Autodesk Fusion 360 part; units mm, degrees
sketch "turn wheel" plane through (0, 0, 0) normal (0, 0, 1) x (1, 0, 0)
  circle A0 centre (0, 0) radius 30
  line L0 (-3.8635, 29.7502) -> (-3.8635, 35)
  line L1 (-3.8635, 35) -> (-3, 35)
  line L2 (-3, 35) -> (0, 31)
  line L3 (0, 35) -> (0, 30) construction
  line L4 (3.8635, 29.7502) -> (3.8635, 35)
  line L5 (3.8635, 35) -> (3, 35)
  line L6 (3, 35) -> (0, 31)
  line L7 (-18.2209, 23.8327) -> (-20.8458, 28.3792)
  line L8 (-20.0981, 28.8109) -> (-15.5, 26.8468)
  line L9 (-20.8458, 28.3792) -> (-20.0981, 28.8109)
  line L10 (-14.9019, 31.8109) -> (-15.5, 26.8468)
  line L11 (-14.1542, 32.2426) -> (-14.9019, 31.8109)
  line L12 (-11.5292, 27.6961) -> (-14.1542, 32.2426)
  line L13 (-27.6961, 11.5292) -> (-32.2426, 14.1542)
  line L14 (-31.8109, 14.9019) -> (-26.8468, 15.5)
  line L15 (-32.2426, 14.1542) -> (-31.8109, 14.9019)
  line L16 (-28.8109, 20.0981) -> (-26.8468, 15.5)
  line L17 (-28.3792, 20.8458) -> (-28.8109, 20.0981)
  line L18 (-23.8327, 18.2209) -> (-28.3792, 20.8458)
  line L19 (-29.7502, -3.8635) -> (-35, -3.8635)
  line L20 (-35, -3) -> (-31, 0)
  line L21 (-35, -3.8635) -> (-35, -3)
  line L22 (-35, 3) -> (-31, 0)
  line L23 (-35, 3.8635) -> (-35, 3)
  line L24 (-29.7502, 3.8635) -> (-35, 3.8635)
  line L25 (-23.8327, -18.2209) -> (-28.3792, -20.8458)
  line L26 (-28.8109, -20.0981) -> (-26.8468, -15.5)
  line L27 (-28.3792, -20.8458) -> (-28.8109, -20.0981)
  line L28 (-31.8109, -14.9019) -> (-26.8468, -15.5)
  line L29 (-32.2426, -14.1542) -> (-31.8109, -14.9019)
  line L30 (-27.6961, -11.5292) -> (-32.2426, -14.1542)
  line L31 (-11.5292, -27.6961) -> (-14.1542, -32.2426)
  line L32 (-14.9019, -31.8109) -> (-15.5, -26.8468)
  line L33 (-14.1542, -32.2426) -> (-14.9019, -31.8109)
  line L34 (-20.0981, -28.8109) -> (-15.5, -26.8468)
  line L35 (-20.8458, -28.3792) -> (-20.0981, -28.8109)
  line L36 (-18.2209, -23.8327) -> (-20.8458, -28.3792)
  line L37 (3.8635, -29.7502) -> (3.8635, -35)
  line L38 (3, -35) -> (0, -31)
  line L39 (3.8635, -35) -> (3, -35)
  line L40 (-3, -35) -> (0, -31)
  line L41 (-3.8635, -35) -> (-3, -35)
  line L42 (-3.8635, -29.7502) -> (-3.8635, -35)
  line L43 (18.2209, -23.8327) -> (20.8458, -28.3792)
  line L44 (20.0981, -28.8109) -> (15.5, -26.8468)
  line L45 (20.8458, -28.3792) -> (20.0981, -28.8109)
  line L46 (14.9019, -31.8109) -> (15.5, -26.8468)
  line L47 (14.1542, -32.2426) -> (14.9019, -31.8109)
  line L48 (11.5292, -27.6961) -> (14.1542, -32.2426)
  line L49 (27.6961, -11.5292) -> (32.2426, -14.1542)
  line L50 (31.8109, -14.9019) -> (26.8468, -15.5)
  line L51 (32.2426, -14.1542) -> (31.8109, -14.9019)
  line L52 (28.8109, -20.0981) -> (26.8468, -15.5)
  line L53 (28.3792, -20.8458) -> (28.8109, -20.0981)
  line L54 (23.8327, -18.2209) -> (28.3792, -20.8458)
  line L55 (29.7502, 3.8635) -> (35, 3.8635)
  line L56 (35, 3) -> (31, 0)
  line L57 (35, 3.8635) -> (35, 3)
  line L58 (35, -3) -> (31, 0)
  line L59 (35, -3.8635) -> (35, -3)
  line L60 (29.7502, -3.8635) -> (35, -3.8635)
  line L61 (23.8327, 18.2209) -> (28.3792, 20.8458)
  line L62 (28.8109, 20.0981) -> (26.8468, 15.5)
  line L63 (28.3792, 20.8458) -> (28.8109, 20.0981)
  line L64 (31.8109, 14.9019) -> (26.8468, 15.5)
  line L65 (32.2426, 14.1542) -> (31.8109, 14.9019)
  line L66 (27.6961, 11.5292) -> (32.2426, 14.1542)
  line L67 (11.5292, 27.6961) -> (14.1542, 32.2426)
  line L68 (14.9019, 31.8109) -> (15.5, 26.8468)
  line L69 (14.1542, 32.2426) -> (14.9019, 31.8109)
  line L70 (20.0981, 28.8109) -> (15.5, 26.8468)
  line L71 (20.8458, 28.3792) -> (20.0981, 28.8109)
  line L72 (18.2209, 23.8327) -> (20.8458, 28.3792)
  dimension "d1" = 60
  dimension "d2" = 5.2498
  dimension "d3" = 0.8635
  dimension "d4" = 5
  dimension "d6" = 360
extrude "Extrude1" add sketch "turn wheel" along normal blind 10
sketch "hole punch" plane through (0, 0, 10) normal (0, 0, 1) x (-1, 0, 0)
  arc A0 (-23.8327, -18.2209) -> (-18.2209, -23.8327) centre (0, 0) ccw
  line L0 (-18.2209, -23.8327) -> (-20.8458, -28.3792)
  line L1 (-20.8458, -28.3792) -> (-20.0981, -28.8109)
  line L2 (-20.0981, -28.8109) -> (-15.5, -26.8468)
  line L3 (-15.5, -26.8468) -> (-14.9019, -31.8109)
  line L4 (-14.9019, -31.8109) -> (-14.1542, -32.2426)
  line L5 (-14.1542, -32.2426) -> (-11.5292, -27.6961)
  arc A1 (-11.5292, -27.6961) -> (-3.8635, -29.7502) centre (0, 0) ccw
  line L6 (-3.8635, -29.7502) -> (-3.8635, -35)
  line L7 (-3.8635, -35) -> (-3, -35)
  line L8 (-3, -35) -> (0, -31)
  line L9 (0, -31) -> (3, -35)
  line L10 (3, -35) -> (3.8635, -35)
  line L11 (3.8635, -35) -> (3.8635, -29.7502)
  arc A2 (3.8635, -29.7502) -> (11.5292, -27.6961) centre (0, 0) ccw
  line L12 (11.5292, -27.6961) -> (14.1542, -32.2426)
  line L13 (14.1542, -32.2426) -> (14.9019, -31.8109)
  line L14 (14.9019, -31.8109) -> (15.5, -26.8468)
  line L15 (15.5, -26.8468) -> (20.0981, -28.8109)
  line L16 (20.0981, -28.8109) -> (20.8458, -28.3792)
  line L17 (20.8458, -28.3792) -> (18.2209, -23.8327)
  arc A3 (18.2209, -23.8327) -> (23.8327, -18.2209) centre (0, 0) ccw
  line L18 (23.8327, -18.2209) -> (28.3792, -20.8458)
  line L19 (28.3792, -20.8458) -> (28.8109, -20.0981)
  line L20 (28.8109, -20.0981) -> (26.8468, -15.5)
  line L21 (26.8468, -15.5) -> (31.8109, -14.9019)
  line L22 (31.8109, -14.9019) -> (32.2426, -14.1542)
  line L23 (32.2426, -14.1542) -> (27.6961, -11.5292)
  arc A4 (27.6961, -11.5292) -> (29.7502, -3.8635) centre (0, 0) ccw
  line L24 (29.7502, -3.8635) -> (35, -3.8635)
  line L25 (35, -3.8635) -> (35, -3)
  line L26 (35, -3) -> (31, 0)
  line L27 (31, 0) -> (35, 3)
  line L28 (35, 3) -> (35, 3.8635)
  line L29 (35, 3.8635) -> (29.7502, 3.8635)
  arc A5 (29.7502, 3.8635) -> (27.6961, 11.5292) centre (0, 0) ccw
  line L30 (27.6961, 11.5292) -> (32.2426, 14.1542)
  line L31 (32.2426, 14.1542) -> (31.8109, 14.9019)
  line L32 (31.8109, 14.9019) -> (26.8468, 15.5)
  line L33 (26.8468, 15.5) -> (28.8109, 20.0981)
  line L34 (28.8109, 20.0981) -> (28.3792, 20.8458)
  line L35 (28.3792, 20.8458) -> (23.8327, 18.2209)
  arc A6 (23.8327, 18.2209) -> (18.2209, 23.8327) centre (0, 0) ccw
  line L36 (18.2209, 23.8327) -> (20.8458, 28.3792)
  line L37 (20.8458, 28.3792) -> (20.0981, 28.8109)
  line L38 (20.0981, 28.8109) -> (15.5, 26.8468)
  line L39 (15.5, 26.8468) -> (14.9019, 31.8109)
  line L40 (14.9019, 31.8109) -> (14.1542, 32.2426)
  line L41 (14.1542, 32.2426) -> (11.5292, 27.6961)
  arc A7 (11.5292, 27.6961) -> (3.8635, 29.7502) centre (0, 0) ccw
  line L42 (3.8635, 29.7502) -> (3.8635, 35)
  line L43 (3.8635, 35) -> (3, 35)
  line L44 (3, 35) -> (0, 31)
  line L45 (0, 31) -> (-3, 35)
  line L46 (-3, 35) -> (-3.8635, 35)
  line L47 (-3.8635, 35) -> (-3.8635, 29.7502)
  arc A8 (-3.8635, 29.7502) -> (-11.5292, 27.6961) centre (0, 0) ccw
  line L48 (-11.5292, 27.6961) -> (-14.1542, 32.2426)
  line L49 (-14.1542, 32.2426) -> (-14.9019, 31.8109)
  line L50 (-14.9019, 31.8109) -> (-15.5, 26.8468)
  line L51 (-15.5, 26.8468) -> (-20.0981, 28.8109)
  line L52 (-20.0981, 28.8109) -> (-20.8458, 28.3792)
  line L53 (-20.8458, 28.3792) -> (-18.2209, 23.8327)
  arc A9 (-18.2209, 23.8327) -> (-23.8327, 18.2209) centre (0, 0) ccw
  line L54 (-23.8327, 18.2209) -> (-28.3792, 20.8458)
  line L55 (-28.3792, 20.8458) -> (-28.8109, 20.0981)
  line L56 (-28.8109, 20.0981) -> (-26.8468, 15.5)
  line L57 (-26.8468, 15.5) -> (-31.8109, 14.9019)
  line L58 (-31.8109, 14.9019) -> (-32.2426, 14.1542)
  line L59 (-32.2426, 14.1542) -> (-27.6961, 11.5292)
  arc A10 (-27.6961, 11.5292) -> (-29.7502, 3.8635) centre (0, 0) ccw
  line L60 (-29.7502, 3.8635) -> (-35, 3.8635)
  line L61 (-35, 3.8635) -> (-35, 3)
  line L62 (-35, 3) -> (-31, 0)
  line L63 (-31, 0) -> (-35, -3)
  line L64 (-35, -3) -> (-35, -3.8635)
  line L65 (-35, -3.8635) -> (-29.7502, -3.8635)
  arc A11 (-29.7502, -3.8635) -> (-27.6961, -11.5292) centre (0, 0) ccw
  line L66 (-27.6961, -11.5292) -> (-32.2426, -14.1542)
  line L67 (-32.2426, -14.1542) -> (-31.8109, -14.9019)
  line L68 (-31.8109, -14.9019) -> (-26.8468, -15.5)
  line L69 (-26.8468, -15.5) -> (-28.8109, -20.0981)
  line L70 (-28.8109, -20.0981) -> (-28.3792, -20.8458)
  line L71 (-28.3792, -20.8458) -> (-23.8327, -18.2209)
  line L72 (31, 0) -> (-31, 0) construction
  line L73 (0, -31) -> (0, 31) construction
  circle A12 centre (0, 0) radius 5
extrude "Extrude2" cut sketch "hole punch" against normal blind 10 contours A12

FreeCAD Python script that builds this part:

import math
import FreeCAD as App
import Part
import Sketcher

V = App.Vector
Q = App.Units.Quantity

doc = App.newDocument("Part")
body = doc.addObject("PartDesign::Body", "Body")

# Sketch on XY plane
sketch1 = body.newObject("Sketcher::SketchObject", "Sketch")
sketch1.AttachmentSupport = (doc.getObject("XY_Plane"), [""])
sketch1.MapMode = "FlatFace"
sketch1.addGeometry([
    Part.ArcOfCircle(Part.Circle(V(0, 0, 0), V(0, 0, 1), 30), math.radians(-22.600752), math.radians(-7.399287)),  # 0
    Part.LineSegment(V(29.7502, -3.8635, 0), V(35, -3.8635, 0)),  # 1
    Part.LineSegment(V(35, -3.8635, 0), V(35, -3, 0)),  # 2
    Part.LineSegment(V(35, -3, 0), V(31, 0, 0)),  # 3
    Part.LineSegment(V(31, 0, 0), V(35, 3, 0)),  # 4
    Part.LineSegment(V(35, 3, 0), V(35, 3.8635, 0)),  # 5
    Part.LineSegment(V(35, 3.8635, 0), V(29.7502, 3.8635, 0)),  # 6
    Part.ArcOfCircle(Part.Circle(V(0, 0, 0), V(0, 0, 1), 30), math.radians(7.399287), math.radians(22.600752)),  # 7
    Part.LineSegment(V(27.6961, 11.5292, 0), V(32.2426, 14.1542, 0)),  # 8
    Part.LineSegment(V(32.2426, 14.1542, 0), V(31.8109, 14.9019, 0)),  # 9
    Part.LineSegment(V(31.8109, 14.9019, 0), V(26.8468, 15.5, 0)),  # 10
    Part.LineSegment(V(26.8468, 15.5, 0), V(28.8109, 20.0981, 0)),  # 11
    Part.LineSegment(V(28.8109, 20.0981, 0), V(28.3792, 20.8458, 0)),  # 12
    Part.LineSegment(V(28.3792, 20.8458, 0), V(23.8327, 18.2209, 0)),  # 13
    Part.ArcOfCircle(Part.Circle(V(0, 0, 0), V(0, 0, 1), 30), math.radians(37.399128), math.radians(52.600872)),  # 14
    Part.LineSegment(V(18.2209, 23.8327, 0), V(20.8458, 28.3792, 0)),  # 15
    Part.LineSegment(V(20.8458, 28.3792, 0), V(20.0981, 28.8109, 0)),  # 16
    Part.LineSegment(V(20.0981, 28.8109, 0), V(15.5, 26.8468, 0)),  # 17
    Part.LineSegment(V(15.5, 26.8468, 0), V(14.9019, 31.8109, 0)),  # 18
    Part.LineSegment(V(14.9019, 31.8109, 0), V(14.1542, 32.2426, 0)),  # 19
    Part.LineSegment(V(14.1542, 32.2426, 0), V(11.5292, 27.6961, 0)),  # 20
    Part.ArcOfCircle(Part.Circle(V(0, 0, 0), V(0, 0, 1), 30), math.radians(67.399248), math.radians(82.600713)),  # 21
    Part.LineSegment(V(3.8635, 29.7502, 0), V(3.8635, 35, 0)),  # 22
    Part.LineSegment(V(3.8635, 35, 0), V(3, 35, 0)),  # 23
    Part.LineSegment(V(3, 35, 0), V(0, 31, 0)),  # 24
    Part.LineSegment(V(0, 31, 0), V(-3, 35, 0)),  # 25
    Part.LineSegment(V(-3, 35, 0), V(-3.8635, 35, 0)),  # 26
    Part.LineSegment(V(-3.8635, 35, 0), V(-3.8635, 29.7502, 0)),  # 27
    Part.ArcOfCircle(Part.Circle(V(0, 0, 0), V(0, 0, 1), 30), math.radians(97.399287), math.radians(112.600752)),  # 28
    Part.LineSegment(V(-11.5292, 27.6961, 0), V(-14.1542, 32.2426, 0)),  # 29
    Part.LineSegment(V(-14.1542, 32.2426, 0), V(-14.9019, 31.8109, 0)),  # 30
    Part.LineSegment(V(-14.9019, 31.8109, 0), V(-15.5, 26.8468, 0)),  # 31
    Part.LineSegment(V(-15.5, 26.8468, 0), V(-20.0981, 28.8109, 0)),  # 32
    Part.LineSegment(V(-20.0981, 28.8109, 0), V(-20.8458, 28.3792, 0)),  # 33
    Part.LineSegment(V(-20.8458, 28.3792, 0), V(-18.2209, 23.8327, 0)),  # 34
    Part.ArcOfCircle(Part.Circle(V(0, 0, 0), V(0, 0, 1), 30), math.radians(127.399128), math.radians(142.600872)),  # 35
    Part.LineSegment(V(-23.8327, 18.2209, 0), V(-28.3792, 20.8458, 0)),  # 36
    Part.LineSegment(V(-28.3792, 20.8458, 0), V(-28.8109, 20.0981, 0)),  # 37
    Part.LineSegment(V(-28.8109, 20.0981, 0), V(-26.8468, 15.5, 0)),  # 38
    Part.LineSegment(V(-26.8468, 15.5, 0), V(-31.8109, 14.9019, 0)),  # 39
    Part.LineSegment(V(-31.8109, 14.9019, 0), V(-32.2426, 14.1542, 0)),  # 40
    Part.LineSegment(V(-32.2426, 14.1542, 0), V(-27.6961, 11.5292, 0)),  # 41
    Part.ArcOfCircle(Part.Circle(V(0, 0, 0), V(0, 0, 1), 30), math.radians(157.399248), math.radians(172.600713)),  # 42
    Part.LineSegment(V(-29.7502, 3.8635, 0), V(-35, 3.8635, 0)),  # 43
    Part.LineSegment(V(-35, 3.8635, 0), V(-35, 3, 0)),  # 44
    Part.LineSegment(V(-35, 3, 0), V(-31, 0, 0)),  # 45
    Part.LineSegment(V(-31, 0, 0), V(-35, -3, 0)),  # 46
    Part.LineSegment(V(-35, -3, 0), V(-35, -3.8635, 0)),  # 47
    Part.LineSegment(V(-35, -3.8635, 0), V(-29.7502, -3.8635, 0)),  # 48
    Part.ArcOfCircle(Part.Circle(V(0, 0, 0), V(0, 0, 1), 30), math.radians(-172.600713), math.radians(-157.399248)),  # 49
    Part.LineSegment(V(-27.6961, -11.5292, 0), V(-32.2426, -14.1542, 0)),  # 50
    Part.LineSegment(V(-32.2426, -14.1542, 0), V(-31.8109, -14.9019, 0)),  # 51
    Part.LineSegment(V(-31.8109, -14.9019, 0), V(-26.8468, -15.5, 0)),  # 52
    Part.LineSegment(V(-26.8468, -15.5, 0), V(-28.8109, -20.0981, 0)),  # 53
    Part.LineSegment(V(-28.8109, -20.0981, 0), V(-28.3792, -20.8458, 0)),  # 54
    Part.LineSegment(V(-28.3792, -20.8458, 0), V(-23.8327, -18.2209, 0)),  # 55
    Part.ArcOfCircle(Part.Circle(V(0, 0, 0), V(0, 0, 1), 30), math.radians(-142.600872), math.radians(-127.399128)),  # 56
    Part.LineSegment(V(-18.2209, -23.8327, 0), V(-20.8458, -28.3792, 0)),  # 57
    Part.LineSegment(V(-20.8458, -28.3792, 0), V(-20.0981, -28.8109, 0)),  # 58
    Part.LineSegment(V(-20.0981, -28.8109, 0), V(-15.5, -26.8468, 0)),  # 59
    Part.LineSegment(V(-15.5, -26.8468, 0), V(-14.9019, -31.8109, 0)),  # 60
    Part.LineSegment(V(-14.9019, -31.8109, 0), V(-14.1542, -32.2426, 0)),  # 61
    Part.LineSegment(V(-14.1542, -32.2426, 0), V(-11.5292, -27.6961, 0)),  # 62
    Part.ArcOfCircle(Part.Circle(V(0, 0, 0), V(0, 0, 1), 30), math.radians(-112.600752), math.radians(-97.399287)),  # 63
    Part.LineSegment(V(-3.8635, -29.7502, 0), V(-3.8635, -35, 0)),  # 64
    Part.LineSegment(V(-3.8635, -35, 0), V(-3, -35, 0)),  # 65
    Part.LineSegment(V(-3, -35, 0), V(0, -31, 0)),  # 66
    Part.LineSegment(V(0, -31, 0), V(3, -35, 0)),  # 67
    Part.LineSegment(V(3, -35, 0), V(3.8635, -35, 0)),  # 68
    Part.LineSegment(V(3.8635, -35, 0), V(3.8635, -29.7502, 0)),  # 69
    Part.ArcOfCircle(Part.Circle(V(0, 0, 0), V(0, 0, 1), 30), math.radians(-82.600713), math.radians(-67.399248)),  # 70
    Part.LineSegment(V(11.5292, -27.6961, 0), V(14.1542, -32.2426, 0)),  # 71
    Part.LineSegment(V(14.1542, -32.2426, 0), V(14.9019, -31.8109, 0)),  # 72
    Part.LineSegment(V(14.9019, -31.8109, 0), V(15.5, -26.8468, 0)),  # 73
    Part.LineSegment(V(15.5, -26.8468, 0), V(20.0981, -28.8109, 0)),  # 74
    Part.LineSegment(V(20.0981, -28.8109, 0), V(20.8458, -28.3792, 0)),  # 75
    Part.LineSegment(V(20.8458, -28.3792, 0), V(18.2209, -23.8327, 0)),  # 76
    Part.ArcOfCircle(Part.Circle(V(0, 0, 0), V(0, 0, 1), 30), math.radians(-52.600872), math.radians(-37.399128)),  # 77
    Part.LineSegment(V(23.8327, -18.2209, 0), V(28.3792, -20.8458, 0)),  # 78
    Part.LineSegment(V(28.3792, -20.8458, 0), V(28.8109, -20.0981, 0)),  # 79
    Part.LineSegment(V(28.8109, -20.0981, 0), V(26.8468, -15.5, 0)),  # 80
    Part.LineSegment(V(26.8468, -15.5, 0), V(31.8109, -14.9019, 0)),  # 81
    Part.LineSegment(V(31.8109, -14.9019, 0), V(32.2426, -14.1542, 0)),  # 82
    Part.LineSegment(V(32.2426, -14.1542, 0), V(27.6961, -11.5292, 0)),  # 83
], False)
sketch1.addConstraint([
    Sketcher.Constraint("Coincident", 0, 2, 1, 1),
    Sketcher.Constraint("Coincident", 1, 2, 2, 1),
    Sketcher.Constraint("Coincident", 2, 2, 3, 1),
    Sketcher.Constraint("Coincident", 3, 2, 4, 1),
    Sketcher.Constraint("Coincident", 4, 2, 5, 1),
    Sketcher.Constraint("Coincident", 5, 2, 6, 1),
    Sketcher.Constraint("Coincident", 6, 2, 7, 1),
    Sketcher.Constraint("Coincident", 7, 2, 8, 1),
    Sketcher.Constraint("Coincident", 8, 2, 9, 1),
    Sketcher.Constraint("Coincident", 9, 2, 10, 1),
    Sketcher.Constraint("Coincident", 10, 2, 11, 1),
    Sketcher.Constraint("Coincident", 11, 2, 12, 1),
    Sketcher.Constraint("Coincident", 12, 2, 13, 1),
    Sketcher.Constraint("Coincident", 13, 2, 14, 1),
    Sketcher.Constraint("Coincident", 14, 2, 15, 1),
    Sketcher.Constraint("Coincident", 15, 2, 16, 1),
    Sketcher.Constraint("Coincident", 16, 2, 17, 1),
    Sketcher.Constraint("Coincident", 17, 2, 18, 1),
    Sketcher.Constraint("Coincident", 18, 2, 19, 1),
    Sketcher.Constraint("Coincident", 19, 2, 20, 1),
    Sketcher.Constraint("Coincident", 20, 2, 21, 1),
    Sketcher.Constraint("Coincident", 21, 2, 22, 1),
    Sketcher.Constraint("Coincident", 22, 2, 23, 1),
    Sketcher.Constraint("Coincident", 23, 2, 24, 1),
    Sketcher.Constraint("Coincident", 24, 2, 25, 1),
    Sketcher.Constraint("Coincident", 25, 2, 26, 1),
    Sketcher.Constraint("Coincident", 26, 2, 27, 1),
    Sketcher.Constraint("Coincident", 27, 2, 28, 1),
    Sketcher.Constraint("Coincident", 28, 2, 29, 1),
    Sketcher.Constraint("Coincident", 29, 2, 30, 1),
    Sketcher.Constraint("Coincident", 30, 2, 31, 1),
    Sketcher.Constraint("Coincident", 31, 2, 32, 1),
    Sketcher.Constraint("Coincident", 32, 2, 33, 1),
    Sketcher.Constraint("Coincident", 33, 2, 34, 1),
    Sketcher.Constraint("Coincident", 34, 2, 35, 1),
    Sketcher.Constraint("Coincident", 35, 2, 36, 1),
    Sketcher.Constraint("Coincident", 36, 2, 37, 1),
    Sketcher.Constraint("Coincident", 37, 2, 38, 1),
    Sketcher.Constraint("Coincident", 38, 2, 39, 1),
    Sketcher.Constraint("Coincident", 39, 2, 40, 1),
    Sketcher.Constraint("Coincident", 40, 2, 41, 1),
    Sketcher.Constraint("Coincident", 41, 2, 42, 1),
    Sketcher.Constraint("Coincident", 42, 2, 43, 1),
    Sketcher.Constraint("Coincident", 43, 2, 44, 1),
    Sketcher.Constraint("Coincident", 44, 2, 45, 1),
    Sketcher.Constraint("Coincident", 45, 2, 46, 1),
    Sketcher.Constraint("Coincident", 46, 2, 47, 1),
    Sketcher.Constraint("Coincident", 47, 2, 48, 1),
    Sketcher.Constraint("Coincident", 48, 2, 49, 1),
    Sketcher.Constraint("Coincident", 49, 2, 50, 1),
    Sketcher.Constraint("Coincident", 50, 2, 51, 1),
    Sketcher.Constraint("Coincident", 51, 2, 52, 1),
    Sketcher.Constraint("Coincident", 52, 2, 53, 1),
    Sketcher.Constraint("Coincident", 53, 2, 54, 1),
    Sketcher.Constraint("Coincident", 54, 2, 55, 1),
    Sketcher.Constraint("Coincident", 55, 2, 56, 1),
    Sketcher.Constraint("Coincident", 56, 2, 57, 1),
    Sketcher.Constraint("Coincident", 57, 2, 58, 1),
    Sketcher.Constraint("Coincident", 58, 2, 59, 1),
    Sketcher.Constraint("Coincident", 59, 2, 60, 1),
    Sketcher.Constraint("Coincident", 60, 2, 61, 1),
    Sketcher.Constraint("Coincident", 61, 2, 62, 1),
    Sketcher.Constraint("Coincident", 62, 2, 63, 1),
    Sketcher.Constraint("Coincident", 63, 2, 64, 1),
    Sketcher.Constraint("Coincident", 64, 2, 65, 1),
    Sketcher.Constraint("Coincident", 65, 2, 66, 1),
    Sketcher.Constraint("Coincident", 66, 2, 67, 1),
    Sketcher.Constraint("Coincident", 67, 2, 68, 1),
    Sketcher.Constraint("Coincident", 68, 2, 69, 1),
    Sketcher.Constraint("Coincident", 69, 2, 70, 1),
    Sketcher.Constraint("Coincident", 70, 2, 71, 1),
    Sketcher.Constraint("Coincident", 71, 2, 72, 1),
    Sketcher.Constraint("Coincident", 72, 2, 73, 1),
    Sketcher.Constraint("Coincident", 73, 2, 74, 1),
    Sketcher.Constraint("Coincident", 74, 2, 75, 1),
    Sketcher.Constraint("Coincident", 75, 2, 76, 1),
    Sketcher.Constraint("Coincident", 76, 2, 77, 1),
    Sketcher.Constraint("Coincident", 77, 2, 78, 1),
    Sketcher.Constraint("Coincident", 78, 2, 79, 1),
    Sketcher.Constraint("Coincident", 79, 2, 80, 1),
    Sketcher.Constraint("Coincident", 80, 2, 81, 1),
    Sketcher.Constraint("Coincident", 81, 2, 82, 1),
    Sketcher.Constraint("Coincident", 82, 2, 83, 1),
    Sketcher.Constraint("Coincident", 83, 2, 0, 1),
    Sketcher.Constraint("Horizontal", 1),
    Sketcher.Constraint("Vertical", 2),
    Sketcher.Constraint("Vertical", 5),
    Sketcher.Constraint("Horizontal", 6),
    Sketcher.Constraint("Vertical", 22),
    Sketcher.Constraint("Horizontal", 23),
    Sketcher.Constraint("Horizontal", 26),
    Sketcher.Constraint("Vertical", 27),
    Sketcher.Constraint("Horizontal", 43),
    Sketcher.Constraint("Vertical", 44),
    Sketcher.Constraint("Vertical", 47),
    Sketcher.Constraint("Horizontal", 48),
    Sketcher.Constraint("Vertical", 64),
    Sketcher.Constraint("Horizontal", 65),
    Sketcher.Constraint("Horizontal", 68),
    Sketcher.Constraint("Vertical", 69),
    Sketcher.Constraint("Coincident", 0, 3, -1, 1),
    Sketcher.Constraint("Coincident", 7, 3, -1, 1),
    Sketcher.Constraint("Coincident", 14, 3, -1, 1),
    Sketcher.Constraint("Coincident", 21, 3, -1, 1),
    Sketcher.Constraint("Coincident", 28, 3, -1, 1),
    Sketcher.Constraint("Coincident", 35, 3, -1, 1),
    Sketcher.Constraint("Coincident", 42, 3, -1, 1),
    Sketcher.Constraint("Coincident", 49, 3, -1, 1),
    Sketcher.Constraint("Coincident", 56, 3, -1, 1),
    Sketcher.Constraint("Coincident", 63, 3, -1, 1),
    Sketcher.Constraint("Coincident", 70, 3, -1, 1),
    Sketcher.Constraint("Coincident", 77, 3, -1, 1),
    Sketcher.Constraint("Equal", 0, 7),
    Sketcher.Constraint("Equal", 7, 14),
    Sketcher.Constraint("Equal", 14, 21),
    Sketcher.Constraint("Equal", 21, 28),
    Sketcher.Constraint("Equal", 28, 35),
    Sketcher.Constraint("Equal", 35, 42),
    Sketcher.Constraint("Equal", 42, 49),
    Sketcher.Constraint("Equal", 49, 56),
    Sketcher.Constraint("Equal", 56, 63),
    Sketcher.Constraint("Equal", 63, 70),
    Sketcher.Constraint("Equal", 70, 77),
    Sketcher.Constraint("Symmetric", 1, 2, 43, 2, -1, 1),
    Sketcher.Constraint("Symmetric", 3, 2, 45, 2, -1, 1),
    Sketcher.Constraint("Symmetric", 4, 2, 46, 2, -1, 1),
    Sketcher.Constraint("Symmetric", 8, 2, 50, 2, -1, 1),
    Sketcher.Constraint("Symmetric", 9, 2, 51, 2, -1, 1),
    Sketcher.Constraint("Symmetric", 10, 2, 52, 2, -1, 1),
    Sketcher.Constraint("Symmetric", 11, 2, 53, 2, -1, 1),
    Sketcher.Constraint("Symmetric", 12, 2, 54, 2, -1, 1),
    Sketcher.Constraint("Symmetric", 15, 2, 57, 2, -1, 1),
    Sketcher.Constraint("Symmetric", 16, 2, 58, 2, -1, 1),
    Sketcher.Constraint("Symmetric", 17, 2, 59, 2, -1, 1),
    Sketcher.Constraint("Symmetric", 18, 2, 60, 2, -1, 1),
    Sketcher.Constraint("Symmetric", 19, 2, 61, 2, -1, 1),
    Sketcher.Constraint("Symmetric", 22, 2, 64, 2, -1, 1),
    Sketcher.Constraint("Symmetric", 24, 2, 66, 2, -1, 1),
    Sketcher.Constraint("Symmetric", 25, 2, 67, 2, -1, 1),
    Sketcher.Constraint("Symmetric", 29, 2, 71, 2, -1, 1),
    Sketcher.Constraint("Symmetric", 30, 2, 72, 2, -1, 1),
    Sketcher.Constraint("Symmetric", 31, 2, 73, 2, -1, 1),
    Sketcher.Constraint("Symmetric", 32, 2, 74, 2, -1, 1),
    Sketcher.Constraint("Symmetric", 33, 2, 75, 2, -1, 1),
    Sketcher.Constraint("Symmetric", 36, 2, 78, 2, -1, 1),
    Sketcher.Constraint("Symmetric", 37, 2, 79, 2, -1, 1),
    Sketcher.Constraint("Symmetric", 38, 2, 80, 2, -1, 1),
    Sketcher.Constraint("Symmetric", 39, 2, 81, 2, -1, 1),
    Sketcher.Constraint("Symmetric", 40, 2, 82, 2, -1, 1),
    Sketcher.Constraint("Symmetric", 23, 2, 25, 2, -2),
    Sketcher.Constraint("Symmetric", 19, 2, 29, 2, -2),
    Sketcher.Constraint("Symmetric", 18, 2, 30, 2, -2),
    Sketcher.Constraint("Symmetric", 17, 2, 31, 2, -2),
    Sketcher.Constraint("Symmetric", 16, 2, 32, 2, -2),
    Sketcher.Constraint("Symmetric", 15, 2, 33, 2, -2),
    Sketcher.Constraint("Symmetric", 12, 2, 36, 2, -2),
    Sketcher.Constraint("Symmetric", 11, 2, 37, 2, -2),
    Sketcher.Constraint("Symmetric", 10, 2, 38, 2, -2),
    Sketcher.Constraint("Symmetric", 9, 2, 39, 2, -2),
    Sketcher.Constraint("Symmetric", 8, 2, 40, 2, -2),
    Sketcher.Constraint("Symmetric", 5, 2, 43, 2, -2),
    Sketcher.Constraint("PointOnObject", 3, 2, -1),
    Sketcher.Constraint("PointOnObject", 24, 2, -2),
    Sketcher.Constraint("Perpendicular", 8, 9),
    Sketcher.Constraint("Parallel", 9, 12),
    Sketcher.Constraint("Perpendicular", 12, 13),
    Sketcher.Constraint("Perpendicular", 15, 16),
    Sketcher.Constraint("Parallel", 16, 19),
    Sketcher.Constraint("Perpendicular", 19, 20),
    Sketcher.Constraint("Perpendicular", 3, 24),
    Sketcher.Constraint("Perpendicular", 4, 25),
    Sketcher.Constraint("Perpendicular", 13, 29),
    Sketcher.Constraint("Perpendicular", 29, 30),
    Sketcher.Constraint("Perpendicular", 10, 31),
    Sketcher.Constraint("Perpendicular", 11, 32),
    Sketcher.Constraint("Perpendicular", 33, 34),
    Sketcher.Constraint("Perpendicular", 20, 36),
    Sketcher.Constraint("Perpendicular", 40, 41),
    Sketcher.Constraint("Perpendicular", 24, 45),
    Sketcher.Constraint("Perpendicular", 34, 50),
    Sketcher.Constraint("Perpendicular", 54, 55),
    Sketcher.Constraint("Perpendicular", 41, 57),
    Sketcher.Constraint("Perpendicular", 61, 62),
    Sketcher.Constraint("Perpendicular", 45, 66),
    Sketcher.Constraint("Perpendicular", 55, 71),
    Sketcher.Constraint("Perpendicular", 75, 76),
    Sketcher.Constraint("Perpendicular", 62, 78),
    Sketcher.Constraint("Perpendicular", 82, 83),
    Sketcher.Constraint("Horizontal", 21, 2, 27, 2),
    Sketcher.Constraint("Horizontal", 1, 2, 47, 2),
    Sketcher.Constraint("Horizontal", 63, 2, 69, 2),
    Sketcher.Constraint("Equal", 68, 2),
    Sketcher.Constraint("Equal", 48, 22),
    Sketcher.Constraint("Equal", 4, 10),
    Sketcher.Constraint("Equal", 10, 11),
    Sketcher.Constraint("Equal", 9, 12),
    Sketcher.Constraint("Equal", 8, 13),
    Sketcher.Constraint("Equal", 13, 15),
    Sketcher.Constraint("Equal", 12, 16),
    Sketcher.Constraint("Equal", 11, 17),
    Sketcher.Constraint("Equal", 17, 18),
    Sketcher.Constraint("Equal", 16, 19),
    Sketcher.Constraint("Equal", 15, 20),
    Sketcher.Constraint("Equal", 18, 24),
    Sketcher.Constraint("Radius", 0, 30.0),
    Sketcher.Constraint("Angle", 15, Q("60.0002 deg")),
    Sketcher.Constraint("Distance", 3, 5.0),
    Sketcher.Constraint("Distance", 8, 5.25),
    Sketcher.Constraint("DistanceX", 1, 1, 1, 2, 5.2498),
    Sketcher.Constraint("DistanceX", 23, 2, 23, 1, 0.8635),
    Sketcher.Constraint("DistanceX", -1, 1, 1, 2, 35.0),
    Sketcher.Constraint("Distance", 9, 0.8634),
    Sketcher.Constraint("DistanceY", -1, 1, 10, 2, 15.5),
    Sketcher.Constraint("Angle", 10, Q("173.1298 deg")),
])
pad1 = body.newObject("PartDesign::Pad", "Pad")
pad1.Profile = sketch1
pad1.Length = 10

# Sketch on XY plane
sketch2 = body.newObject("Sketcher::SketchObject", "Sketch001")
sketch2.AttachmentSupport = (doc.getObject("XY_Plane"), [""])
sketch2.MapMode = "FlatFace"
sketch2.AttachmentOffset = App.Placement(V(0, 0, 10), App.Rotation())
sketch2.addGeometry(Part.Circle(V(0, 0, 0), V(0, 0, 1), 5), False)
sketch2.addConstraint([
    Sketcher.Constraint("Coincident", 0, 3, -1, 1),
    Sketcher.Constraint("Diameter", 0, 10.0),
])
pocket1 = body.newObject("PartDesign::Pocket", "Pocket")
pocket1.Profile = sketch2
pocket1.Length = 10

doc.recompute()
